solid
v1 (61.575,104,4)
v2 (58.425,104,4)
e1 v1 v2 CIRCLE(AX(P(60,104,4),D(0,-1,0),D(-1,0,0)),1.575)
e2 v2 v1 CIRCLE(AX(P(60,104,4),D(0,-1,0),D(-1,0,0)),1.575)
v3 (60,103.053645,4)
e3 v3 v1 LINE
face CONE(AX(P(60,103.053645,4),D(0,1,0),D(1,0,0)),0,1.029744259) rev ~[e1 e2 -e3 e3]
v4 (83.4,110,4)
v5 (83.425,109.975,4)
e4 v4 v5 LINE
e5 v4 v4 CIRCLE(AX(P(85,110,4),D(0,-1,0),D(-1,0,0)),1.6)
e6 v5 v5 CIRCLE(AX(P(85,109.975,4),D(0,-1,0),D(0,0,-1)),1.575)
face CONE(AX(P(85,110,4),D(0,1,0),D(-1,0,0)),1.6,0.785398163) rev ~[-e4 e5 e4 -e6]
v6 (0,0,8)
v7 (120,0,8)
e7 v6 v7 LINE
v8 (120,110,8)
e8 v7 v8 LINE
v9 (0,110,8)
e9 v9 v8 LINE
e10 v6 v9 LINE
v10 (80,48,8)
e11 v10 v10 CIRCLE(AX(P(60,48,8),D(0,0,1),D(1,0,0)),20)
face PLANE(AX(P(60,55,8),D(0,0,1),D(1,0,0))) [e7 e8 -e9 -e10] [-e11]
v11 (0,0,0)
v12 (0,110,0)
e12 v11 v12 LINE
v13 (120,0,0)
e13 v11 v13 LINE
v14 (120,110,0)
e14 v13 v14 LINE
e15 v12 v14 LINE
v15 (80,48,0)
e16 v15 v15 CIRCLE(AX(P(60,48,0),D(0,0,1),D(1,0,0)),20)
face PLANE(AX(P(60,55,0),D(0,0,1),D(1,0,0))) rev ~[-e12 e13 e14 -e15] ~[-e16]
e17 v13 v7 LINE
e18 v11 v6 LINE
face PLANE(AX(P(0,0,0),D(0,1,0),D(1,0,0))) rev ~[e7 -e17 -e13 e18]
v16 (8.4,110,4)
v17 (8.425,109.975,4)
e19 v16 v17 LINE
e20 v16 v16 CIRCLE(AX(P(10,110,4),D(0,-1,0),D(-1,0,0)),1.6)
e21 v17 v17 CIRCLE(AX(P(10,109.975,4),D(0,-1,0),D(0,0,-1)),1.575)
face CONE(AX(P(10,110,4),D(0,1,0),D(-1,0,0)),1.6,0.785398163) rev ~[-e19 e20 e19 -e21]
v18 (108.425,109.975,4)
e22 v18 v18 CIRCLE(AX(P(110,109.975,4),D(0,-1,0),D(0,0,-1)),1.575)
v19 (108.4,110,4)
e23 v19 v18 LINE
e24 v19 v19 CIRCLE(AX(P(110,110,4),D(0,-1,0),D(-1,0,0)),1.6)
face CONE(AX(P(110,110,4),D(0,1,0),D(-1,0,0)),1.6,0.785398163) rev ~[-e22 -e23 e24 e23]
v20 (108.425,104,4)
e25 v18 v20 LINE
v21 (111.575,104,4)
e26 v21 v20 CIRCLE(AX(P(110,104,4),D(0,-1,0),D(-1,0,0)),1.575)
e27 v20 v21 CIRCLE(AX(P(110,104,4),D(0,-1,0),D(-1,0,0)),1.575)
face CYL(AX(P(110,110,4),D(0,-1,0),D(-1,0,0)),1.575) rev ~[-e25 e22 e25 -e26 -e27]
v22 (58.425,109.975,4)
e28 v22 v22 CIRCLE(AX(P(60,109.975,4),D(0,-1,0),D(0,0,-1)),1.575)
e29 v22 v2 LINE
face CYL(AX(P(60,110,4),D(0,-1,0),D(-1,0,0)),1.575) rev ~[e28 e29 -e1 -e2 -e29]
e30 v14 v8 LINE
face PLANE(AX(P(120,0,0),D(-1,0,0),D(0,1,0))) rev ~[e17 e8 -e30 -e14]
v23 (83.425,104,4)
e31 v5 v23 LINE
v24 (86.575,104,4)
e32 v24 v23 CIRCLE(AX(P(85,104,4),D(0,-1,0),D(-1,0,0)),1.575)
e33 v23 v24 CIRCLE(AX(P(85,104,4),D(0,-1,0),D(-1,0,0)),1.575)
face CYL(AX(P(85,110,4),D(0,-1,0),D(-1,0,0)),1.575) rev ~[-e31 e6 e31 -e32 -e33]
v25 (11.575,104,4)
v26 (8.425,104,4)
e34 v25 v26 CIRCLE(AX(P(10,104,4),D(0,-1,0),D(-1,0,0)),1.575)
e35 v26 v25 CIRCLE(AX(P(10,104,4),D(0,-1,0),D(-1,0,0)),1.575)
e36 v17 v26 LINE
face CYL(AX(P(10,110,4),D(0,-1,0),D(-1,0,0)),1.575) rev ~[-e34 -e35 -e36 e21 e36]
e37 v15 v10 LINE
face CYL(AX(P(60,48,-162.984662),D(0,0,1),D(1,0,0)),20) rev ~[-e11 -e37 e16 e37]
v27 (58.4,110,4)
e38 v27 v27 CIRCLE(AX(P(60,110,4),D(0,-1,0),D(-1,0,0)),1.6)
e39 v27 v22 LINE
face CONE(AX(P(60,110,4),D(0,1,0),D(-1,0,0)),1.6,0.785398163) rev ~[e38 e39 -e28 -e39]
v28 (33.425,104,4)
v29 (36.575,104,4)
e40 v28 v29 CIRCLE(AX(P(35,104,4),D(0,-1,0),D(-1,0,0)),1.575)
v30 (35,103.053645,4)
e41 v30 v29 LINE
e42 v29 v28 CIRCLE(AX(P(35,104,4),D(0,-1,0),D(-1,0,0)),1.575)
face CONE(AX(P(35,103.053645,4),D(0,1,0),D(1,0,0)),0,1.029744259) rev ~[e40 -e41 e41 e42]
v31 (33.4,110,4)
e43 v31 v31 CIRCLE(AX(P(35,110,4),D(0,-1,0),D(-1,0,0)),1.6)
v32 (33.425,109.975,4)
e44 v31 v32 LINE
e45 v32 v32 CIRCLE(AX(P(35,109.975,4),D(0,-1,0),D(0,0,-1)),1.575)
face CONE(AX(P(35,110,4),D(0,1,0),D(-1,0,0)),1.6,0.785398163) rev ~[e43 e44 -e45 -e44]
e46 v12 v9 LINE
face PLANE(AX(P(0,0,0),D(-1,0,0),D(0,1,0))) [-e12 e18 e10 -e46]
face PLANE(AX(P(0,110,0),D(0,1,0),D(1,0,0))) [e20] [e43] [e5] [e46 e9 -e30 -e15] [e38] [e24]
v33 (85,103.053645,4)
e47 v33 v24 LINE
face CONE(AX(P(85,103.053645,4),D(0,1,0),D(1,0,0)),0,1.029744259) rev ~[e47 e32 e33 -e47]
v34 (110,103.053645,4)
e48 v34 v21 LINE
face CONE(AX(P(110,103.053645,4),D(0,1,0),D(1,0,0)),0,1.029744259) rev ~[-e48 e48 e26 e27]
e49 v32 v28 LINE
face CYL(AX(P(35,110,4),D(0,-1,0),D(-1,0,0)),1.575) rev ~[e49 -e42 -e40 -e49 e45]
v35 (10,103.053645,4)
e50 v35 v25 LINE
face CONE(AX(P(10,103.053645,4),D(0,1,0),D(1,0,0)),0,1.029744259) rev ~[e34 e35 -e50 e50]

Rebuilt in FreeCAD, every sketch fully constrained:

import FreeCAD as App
import Part
import Sketcher
from FreeCAD import Vector

doc = App.newDocument("Part")
body = doc.addObject("PartDesign::Body", "Body")

# Sketch on XY plane
sketch1 = body.newObject("Sketcher::SketchObject", "Sketch")
sketch1.AttachmentSupport = (doc.getObject("XY_Plane"), [""])
sketch1.MapMode = "FlatFace"
sketch1.addGeometry([
    Part.LineSegment(Vector(0, 110, 0), Vector(0, 0, 0)),
    Part.LineSegment(Vector(0, 0, 0), Vector(120, 0, 0)),
    Part.LineSegment(Vector(120, 0, 0), Vector(120, 110, 0)),
    Part.LineSegment(Vector(120, 110, 0), Vector(0, 110, 0)),
], False)
sketch1.addConstraint([
    Sketcher.Constraint("Coincident", 0, 2, 1, 1),
    Sketcher.Constraint("Coincident", 1, 2, 2, 1),
    Sketcher.Constraint("Coincident", 2, 2, 3, 1),
    Sketcher.Constraint("Coincident", 3, 2, 0, 1),
    Sketcher.Constraint("Vertical", 0),
    Sketcher.Constraint("Horizontal", 1),
    Sketcher.Constraint("Vertical", 2),
    Sketcher.Constraint("Horizontal", 3),
    Sketcher.Constraint("Coincident", 0, 2, -1, 1),
    Sketcher.Constraint("DistanceX", 1, 1, 1, 2, 120.0),
    Sketcher.Constraint("DistanceY", 0, 2, 0, 1, 110.0),
])
pad1 = body.newObject("PartDesign::Pad", "Pad")
pad1.Profile = sketch1
pad1.Length = 8

# Sketch on XZ plane
sketch2 = body.newObject("Sketcher::SketchObject", "Sketch001")
sketch2.AttachmentSupport = (doc.getObject("XZ_Plane"), [""])
sketch2.MapMode = "FlatFace"
sketch2.AttachmentOffset = App.Placement(Vector(0, 0, -110), App.Rotation())
sketch2.addGeometry([
    Part.Circle(Vector(10, 4, 0), Vector(0, 0, 1), 1.6),  # 0
    Part.Circle(Vector(60, 4, 0), Vector(0, 0, 1), 1.6),  # 1
    Part.Circle(Vector(85, 4, 0), Vector(0, 0, 1), 1.6),  # 2
    Part.Circle(Vector(110, 4, 0), Vector(0, 0, 1), 1.6),  # 3
    Part.Circle(Vector(35, 4, 0), Vector(0, 0, 1), 1.6),  # 4
], False)
sketch2.addConstraint([
    Sketcher.Constraint("Equal", 0, 1),
    Sketcher.Constraint("Equal", 1, 2),
    Sketcher.Constraint("Equal", 2, 3),
    Sketcher.Constraint("Equal", 3, 4),
    Sketcher.Constraint("Horizontal", 0, 3, 1, 3),
    Sketcher.Constraint("Horizontal", 1, 3, 2, 3),
    Sketcher.Constraint("Horizontal", 2, 3, 3, 3),
    Sketcher.Constraint("Horizontal", 3, 3, 4, 3),
    Sketcher.Constraint("Diameter", 0, 3.15),
    Sketcher.Constraint("DistanceX", -1, 1, 0, 3, 10.0),
    Sketcher.Constraint("DistanceY", -1, 1, 0, 3, 4.0),
    Sketcher.Constraint("DistanceX", -1, 1, 1, 3, 60.0),
    Sketcher.Constraint("DistanceX", -1, 1, 2, 3, 85.0),
    Sketcher.Constraint("DistanceX", -1, 1, 3, 3, 110.0),
    Sketcher.Constraint("DistanceX", -1, 1, 4, 3, 35.0),
])
doc.recompute()
hole = body.newObject("PartDesign::Hole", "Hole")
hole.Profile = sketch2
hole.ThreadType = "None"
hole.Diameter = 3.15
hole.DepthType = "Dimension"
hole.Depth = 6
hole.DrillPoint = "Angled"
hole.DrillPointAngle = 118
hole.HoleCutType = "Countersink"
hole.HoleCutDiameter = 3.2
hole.HoleCutCountersinkAngle = 90
hole.Reversed = True

# Sketch on XY plane
sketch3 = body.newObject("Sketcher::SketchObject", "Sketch002")
sketch3.AttachmentSupport = (doc.getObject("XY_Plane"), [""])
sketch3.MapMode = "FlatFace"
sketch3.addGeometry(Part.Circle(Vector(60, 48, 0), Vector(0, 0, 1), 20), False)
sketch3.addConstraint([
    Sketcher.Constraint("Diameter", 0, 40.0),
    Sketcher.Constraint("DistanceX", -1, 1, 0, 3, 60.0),
    Sketcher.Constraint("DistanceY", -1, 1, 0, 3, 48.0),
])
doc.recompute()
hole2 = body.newObject("PartDesign::Hole", "Hole001")
hole2.Profile = sketch3
hole2.ThreadType = "None"
hole2.Diameter = 40
hole2.DepthType = "ThroughAll"
hole2.Reversed = True

doc.recompute()
